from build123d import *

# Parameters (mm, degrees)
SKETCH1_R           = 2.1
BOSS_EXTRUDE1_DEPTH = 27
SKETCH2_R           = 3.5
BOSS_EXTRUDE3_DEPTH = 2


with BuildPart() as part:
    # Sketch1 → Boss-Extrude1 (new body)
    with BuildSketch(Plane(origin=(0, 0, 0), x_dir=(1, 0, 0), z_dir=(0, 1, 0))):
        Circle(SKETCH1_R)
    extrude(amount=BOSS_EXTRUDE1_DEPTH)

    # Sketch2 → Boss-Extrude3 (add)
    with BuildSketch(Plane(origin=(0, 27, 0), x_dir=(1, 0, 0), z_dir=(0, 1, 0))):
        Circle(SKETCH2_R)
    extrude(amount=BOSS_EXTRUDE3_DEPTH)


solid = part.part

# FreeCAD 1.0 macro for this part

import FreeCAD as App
import Part
import Sketcher
from FreeCAD import Vector
Q = App.Units.Quantity

doc = App.newDocument("Part")
params = doc.addObject("Spreadsheet::Sheet", "Params")
for row, (alias, value) in enumerate([
    ("sketch1_diameter", "4.2 mm"),
    ("pad1_length", "27 mm"),
    ("sketch2_diameter", "7 mm"),
    ("pad2_length", "2 mm"),
], start=1):
    params.set(f"A{row}", alias)
    params.set(f"B{row}", "=" + value)
    params.setAlias(f"B{row}", alias)

body = doc.addObject("PartDesign::Body", "Body")

# Sketch on XZ plane
sketch1 = body.newObject("Sketcher::SketchObject", "Sketch")
sketch1.AttachmentSupport = (doc.getObject("XZ_Plane"), [""])
sketch1.MapMode = "FlatFace"
sketch1.addGeometry(Part.Circle(Vector(0, 0, 0), Vector(0, 0, 1), 2.1), False)
sketch1.addConstraint([
    Sketcher.Constraint("Coincident", 0, 3, -1, 1),
    Sketcher.Constraint("Diameter", 0, Q("4.2 mm")),
])
sketch1.setExpression("Constraints[1]", "Params.sketch1_diameter")
pad1 = body.newObject("PartDesign::Pad", "Pad")
pad1.Profile = sketch1
pad1.setExpression("Length", "Params.pad1_length")
pad1.Reversed = True

# Sketch on XZ plane
sketch2 = body.newObject("Sketcher::SketchObject", "Sketch001")
sketch2.AttachmentSupport = (doc.getObject("XZ_Plane"), [""])
sketch2.MapMode = "FlatFace"
sketch2.AttachmentOffset = App.Placement(Vector(0, 0, -27), App.Rotation())
sketch2.addGeometry(Part.Circle(Vector(0, 0, 0), Vector(0, 0, 1), 3.5), False)
sketch2.addConstraint([
    Sketcher.Constraint("Coincident", 0, 3, -1, 1),
    Sketcher.Constraint("Diameter", 0, Q("7 mm")),
])
sketch2.setExpression("Constraints[1]", "Params.sketch2_diameter")
pad2 = body.newObject("PartDesign::Pad", "Pad001")
pad2.Profile = sketch2
pad2.setExpression("Length", "Params.pad2_length")
pad2.Reversed = True

doc.recompute()
